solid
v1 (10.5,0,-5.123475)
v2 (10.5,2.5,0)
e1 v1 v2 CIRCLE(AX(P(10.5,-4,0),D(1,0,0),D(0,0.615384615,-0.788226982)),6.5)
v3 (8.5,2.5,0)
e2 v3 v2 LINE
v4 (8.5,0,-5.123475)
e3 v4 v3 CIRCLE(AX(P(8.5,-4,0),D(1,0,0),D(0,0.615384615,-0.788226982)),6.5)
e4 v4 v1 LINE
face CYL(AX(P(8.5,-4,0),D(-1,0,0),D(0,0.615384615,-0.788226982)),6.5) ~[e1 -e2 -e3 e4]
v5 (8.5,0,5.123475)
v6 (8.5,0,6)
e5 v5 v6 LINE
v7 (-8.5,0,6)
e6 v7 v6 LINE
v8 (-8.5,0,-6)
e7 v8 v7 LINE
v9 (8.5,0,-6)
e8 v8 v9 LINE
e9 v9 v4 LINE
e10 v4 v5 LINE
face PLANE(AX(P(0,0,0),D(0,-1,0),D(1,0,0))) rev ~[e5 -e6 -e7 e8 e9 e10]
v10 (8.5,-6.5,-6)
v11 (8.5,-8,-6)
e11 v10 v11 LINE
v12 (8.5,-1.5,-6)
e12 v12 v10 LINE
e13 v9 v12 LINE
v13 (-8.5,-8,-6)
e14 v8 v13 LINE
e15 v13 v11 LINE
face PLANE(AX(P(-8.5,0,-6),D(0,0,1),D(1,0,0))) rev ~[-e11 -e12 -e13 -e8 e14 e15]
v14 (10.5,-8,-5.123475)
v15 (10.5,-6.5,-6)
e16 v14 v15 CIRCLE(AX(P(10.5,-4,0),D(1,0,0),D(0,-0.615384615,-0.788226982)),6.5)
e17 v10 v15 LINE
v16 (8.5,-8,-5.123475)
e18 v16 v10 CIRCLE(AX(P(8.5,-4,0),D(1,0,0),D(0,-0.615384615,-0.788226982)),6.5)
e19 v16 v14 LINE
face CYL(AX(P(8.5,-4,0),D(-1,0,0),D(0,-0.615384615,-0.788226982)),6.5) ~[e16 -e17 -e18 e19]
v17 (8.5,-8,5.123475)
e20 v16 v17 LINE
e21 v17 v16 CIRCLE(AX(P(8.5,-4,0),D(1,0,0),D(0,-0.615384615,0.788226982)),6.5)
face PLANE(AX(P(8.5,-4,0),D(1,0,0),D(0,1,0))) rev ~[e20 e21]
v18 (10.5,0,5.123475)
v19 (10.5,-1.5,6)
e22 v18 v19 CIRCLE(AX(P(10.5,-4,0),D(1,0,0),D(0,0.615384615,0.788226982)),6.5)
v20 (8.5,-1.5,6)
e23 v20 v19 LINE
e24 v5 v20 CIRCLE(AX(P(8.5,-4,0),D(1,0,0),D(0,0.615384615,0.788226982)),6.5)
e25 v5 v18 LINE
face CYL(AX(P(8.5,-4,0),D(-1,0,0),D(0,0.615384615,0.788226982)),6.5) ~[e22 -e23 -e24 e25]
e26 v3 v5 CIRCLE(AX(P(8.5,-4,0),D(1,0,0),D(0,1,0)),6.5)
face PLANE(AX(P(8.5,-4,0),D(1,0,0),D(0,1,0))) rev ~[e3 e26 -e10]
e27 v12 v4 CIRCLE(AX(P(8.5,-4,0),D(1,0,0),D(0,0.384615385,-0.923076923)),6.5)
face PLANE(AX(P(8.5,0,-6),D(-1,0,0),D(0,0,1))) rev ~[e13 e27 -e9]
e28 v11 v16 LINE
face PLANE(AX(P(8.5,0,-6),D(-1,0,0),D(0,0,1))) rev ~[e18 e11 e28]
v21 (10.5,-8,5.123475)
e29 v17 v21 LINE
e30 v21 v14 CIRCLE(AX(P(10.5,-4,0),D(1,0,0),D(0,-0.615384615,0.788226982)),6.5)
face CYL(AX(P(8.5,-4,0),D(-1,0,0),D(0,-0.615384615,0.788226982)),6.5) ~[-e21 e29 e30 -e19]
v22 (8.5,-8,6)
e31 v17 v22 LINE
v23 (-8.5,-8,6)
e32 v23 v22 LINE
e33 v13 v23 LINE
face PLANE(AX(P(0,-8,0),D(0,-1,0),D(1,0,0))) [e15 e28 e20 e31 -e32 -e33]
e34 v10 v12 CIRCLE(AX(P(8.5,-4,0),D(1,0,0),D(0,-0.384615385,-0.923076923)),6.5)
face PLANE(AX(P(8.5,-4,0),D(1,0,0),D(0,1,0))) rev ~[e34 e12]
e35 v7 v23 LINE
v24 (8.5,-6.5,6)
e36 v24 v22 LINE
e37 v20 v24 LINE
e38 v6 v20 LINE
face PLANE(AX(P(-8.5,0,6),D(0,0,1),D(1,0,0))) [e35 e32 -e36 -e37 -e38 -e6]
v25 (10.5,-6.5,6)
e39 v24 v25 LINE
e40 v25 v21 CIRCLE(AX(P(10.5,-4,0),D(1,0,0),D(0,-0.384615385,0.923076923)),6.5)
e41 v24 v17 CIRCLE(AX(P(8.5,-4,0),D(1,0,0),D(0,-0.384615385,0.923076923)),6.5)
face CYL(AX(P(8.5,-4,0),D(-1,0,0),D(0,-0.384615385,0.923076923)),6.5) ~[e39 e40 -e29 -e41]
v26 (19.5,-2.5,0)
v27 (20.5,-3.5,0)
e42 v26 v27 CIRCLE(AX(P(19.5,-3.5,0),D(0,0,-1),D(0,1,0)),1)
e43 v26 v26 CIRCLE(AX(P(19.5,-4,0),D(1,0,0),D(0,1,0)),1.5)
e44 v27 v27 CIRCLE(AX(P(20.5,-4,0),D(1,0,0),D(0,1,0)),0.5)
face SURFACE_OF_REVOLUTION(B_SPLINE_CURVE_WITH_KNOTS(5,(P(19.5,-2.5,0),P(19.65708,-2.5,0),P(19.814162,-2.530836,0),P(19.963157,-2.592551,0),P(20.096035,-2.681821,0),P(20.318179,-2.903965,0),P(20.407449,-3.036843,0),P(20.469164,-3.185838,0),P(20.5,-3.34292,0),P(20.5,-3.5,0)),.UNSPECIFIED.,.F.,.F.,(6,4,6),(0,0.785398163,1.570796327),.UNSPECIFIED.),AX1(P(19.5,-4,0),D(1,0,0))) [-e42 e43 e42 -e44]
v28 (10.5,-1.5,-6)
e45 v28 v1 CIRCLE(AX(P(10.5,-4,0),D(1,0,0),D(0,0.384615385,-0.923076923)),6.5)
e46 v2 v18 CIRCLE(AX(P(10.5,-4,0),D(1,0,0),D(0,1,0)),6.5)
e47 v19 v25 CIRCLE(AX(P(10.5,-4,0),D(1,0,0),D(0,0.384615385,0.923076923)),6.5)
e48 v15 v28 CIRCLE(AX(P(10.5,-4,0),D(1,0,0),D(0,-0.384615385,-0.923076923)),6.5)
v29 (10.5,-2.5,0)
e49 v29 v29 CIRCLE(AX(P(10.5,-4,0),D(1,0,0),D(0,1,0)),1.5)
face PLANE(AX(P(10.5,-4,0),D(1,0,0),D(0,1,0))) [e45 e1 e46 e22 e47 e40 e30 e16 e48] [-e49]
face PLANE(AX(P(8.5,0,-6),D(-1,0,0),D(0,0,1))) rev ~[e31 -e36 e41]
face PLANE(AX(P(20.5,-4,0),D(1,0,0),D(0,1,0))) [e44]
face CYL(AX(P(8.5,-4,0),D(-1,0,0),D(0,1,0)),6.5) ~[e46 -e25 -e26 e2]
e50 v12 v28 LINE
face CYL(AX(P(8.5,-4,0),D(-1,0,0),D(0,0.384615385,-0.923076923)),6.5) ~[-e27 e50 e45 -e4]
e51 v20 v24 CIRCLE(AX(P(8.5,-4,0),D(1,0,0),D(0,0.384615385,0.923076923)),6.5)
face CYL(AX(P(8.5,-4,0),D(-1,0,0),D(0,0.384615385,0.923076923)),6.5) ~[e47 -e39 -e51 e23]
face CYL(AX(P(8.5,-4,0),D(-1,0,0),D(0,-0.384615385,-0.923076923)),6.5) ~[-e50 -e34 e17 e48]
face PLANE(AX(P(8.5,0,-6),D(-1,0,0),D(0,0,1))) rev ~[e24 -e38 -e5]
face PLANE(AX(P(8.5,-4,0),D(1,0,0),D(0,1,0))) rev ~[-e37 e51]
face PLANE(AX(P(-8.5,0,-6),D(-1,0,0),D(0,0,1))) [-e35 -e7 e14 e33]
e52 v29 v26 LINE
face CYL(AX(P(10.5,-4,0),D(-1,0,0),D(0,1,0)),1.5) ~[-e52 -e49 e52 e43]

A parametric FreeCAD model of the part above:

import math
import FreeCAD as App
import Part
import Sketcher
Q = App.Units.Quantity


def edges_at(feature, points):
    """Names of the edges that pass closest to the given points."""
    edges = feature.Shape.Edges
    near = lambda p: min(range(len(edges)), key=lambda i: edges[i].distToShape(Part.Vertex(*p))[0])
    return sorted({f"Edge{near(p) + 1}" for p in points})


def add_polygon(sketch, points):
    """Adds a closed chain of lines whose ends are joined by coincident constraints."""
    first, n = sketch.GeometryCount, len(points)
    for a, b in zip(points, points[1:] + points[:1]):
        sketch.addGeometry(Part.LineSegment(App.Vector(*a, 0), App.Vector(*b, 0)), False)
    for i in range(n):
        sketch.addConstraint(Sketcher.Constraint("Coincident", first + i, 2, first + (i + 1) % n, 1))

doc = App.newDocument("Part")
body = doc.addObject("PartDesign::Body", "Body")

# Sketch on XZ plane
sketch1 = doc.addObject("Sketcher::SketchObject", "Sketch")
body.addObject(sketch1)
sketch1.AttachmentSupport = (doc.XZ_Plane, [""])
sketch1.MapMode = "FlatFace"
add_polygon(sketch1, [(-8, 6), (-8, -6), (8, -6), (8, 6)])  # lines 0-3
sketch1.addConstraint([
    Sketcher.Constraint("Vertical", 0),
    Sketcher.Constraint("Horizontal", 1),
    Sketcher.Constraint("Vertical", 2),
    Sketcher.Constraint("Horizontal", 3),
    Sketcher.Constraint("Symmetric", 0, 2, 2, 2, -1, 1),
    Sketcher.Constraint("DistanceX", 1, 1, 1, 2, Q("17 mm")),
    Sketcher.Constraint("DistanceY", 0, 2, 0, 1, Q("12 mm")),
])
pad1 = doc.addObject("PartDesign::Pad", "Pad")
body.addObject(pad1)
pad1.Profile = sketch1
pad1.Length = 8

# Sketch on YZ plane
sketch2 = doc.addObject("Sketcher::SketchObject", "Sketch001")
body.addObject(sketch2)
sketch2.AttachmentSupport = (doc.YZ_Plane, [""])
sketch2.MapMode = "FlatFace"
sketch2.AttachmentOffset = App.Placement(App.Vector(0, 0, 8.5), App.Rotation())
sketch2.addGeometry([
    Part.ArcOfCircle(Part.Circle(App.Vector(-4, 0, 0), App.Vector(0, 0, 1), 6.5), math.radians(52.02), math.radians(67.38)),  # 0
    Part.ArcOfCircle(Part.Circle(App.Vector(-4, 0, 0), App.Vector(0, 0, 1), 6.5), math.radians(67), math.radians(113)),  # 1
    Part.ArcOfCircle(Part.Circle(App.Vector(-4, 0, 0), App.Vector(0, 0, 1), 6.5), math.radians(112.62), math.radians(127.98)),  # 2
    Part.ArcOfCircle(Part.Circle(App.Vector(-4, 0, 0), App.Vector(0, 0, 1), 6.5), math.radians(128), math.radians(232)),  # 3
    Part.ArcOfCircle(Part.Circle(App.Vector(-4, 0, 0), App.Vector(0, 0, 1), 6.5), math.radians(-127.98), math.radians(-112.62)),  # 4
    Part.ArcOfCircle(Part.Circle(App.Vector(-4, 0, 0), App.Vector(0, 0, 1), 6.5), math.radians(-113), math.radians(-67)),  # 5
    Part.ArcOfCircle(Part.Circle(App.Vector(-4, 0, 0), App.Vector(0, 0, 1), 6.5), math.radians(-67.38), math.radians(-52.02)),  # 6
    Part.ArcOfCircle(Part.Circle(App.Vector(-4, 0, 0), App.Vector(0, 0, 1), 6.5), math.radians(-52), math.radians(0)),  # 7
    Part.ArcOfCircle(Part.Circle(App.Vector(-4, 0, 0), App.Vector(0, 0, 1), 6.5), math.radians(0), math.radians(52)),  # 8
], False)
sketch2.addConstraint([
    Sketcher.Constraint("Tangent", 0, 2, 1, 1),
    Sketcher.Constraint("Tangent", 1, 2, 2, 1),
    Sketcher.Constraint("Tangent", 2, 2, 3, 1),
    Sketcher.Constraint("Tangent", 3, 2, 4, 1),
    Sketcher.Constraint("Tangent", 4, 2, 5, 1),
    Sketcher.Constraint("Tangent", 5, 2, 6, 1),
    Sketcher.Constraint("Tangent", 6, 2, 7, 1),
    Sketcher.Constraint("Tangent", 7, 2, 8, 1),
    Sketcher.Constraint("Tangent", 8, 2, 0, 1),
    Sketcher.Constraint("Coincident", 2, 3, 0, 3),
    Sketcher.Constraint("Coincident", 4, 3, 0, 3),
    Sketcher.Constraint("Coincident", 6, 3, 0, 3),
    Sketcher.Constraint("Symmetric", 6, 2, 8, 2, -1, 1),
    Sketcher.Constraint("Symmetric", 2, 2, 3, 2, -1),
    Sketcher.Constraint("PointOnObject", 7, 2, -1),
    Sketcher.Constraint("Horizontal", 0, 2, 1, 2),
    Sketcher.Constraint("Horizontal", 4, 2, 5, 2),
    Sketcher.Constraint("Horizontal", 3, 2, 6, 2),
    Sketcher.Constraint("Vertical", 1, 2, 4, 2),
    Sketcher.Constraint("Radius", 0, Q("6.5 mm")),
    Sketcher.Constraint("DistanceX", 0, 3, -1, 1, Q("4 mm")),
    Sketcher.Constraint("DistanceY", -1, 1, 0, 2, Q("6 mm")),
])
pad2 = doc.addObject("PartDesign::Pad", "Pad001")
body.addObject(pad2)
pad2.Profile = sketch2
pad2.Length = 2

# Sketch on YZ plane
sketch3 = doc.addObject("Sketcher::SketchObject", "Sketch002")
body.addObject(sketch3)
sketch3.AttachmentSupport = (doc.YZ_Plane, [""])
sketch3.MapMode = "FlatFace"
sketch3.AttachmentOffset = App.Placement(App.Vector(0, 0, 10.5), App.Rotation())
sketch3.addGeometry(Part.Circle(App.Vector(-4, 0, 0), App.Vector(0, 0, 1), 1.5), False)
sketch3.addConstraint([
    Sketcher.Constraint("PointOnObject", 0, 3, -1),
    Sketcher.Constraint("Diameter", 0, Q("3 mm")),
    Sketcher.Constraint("DistanceX", 0, 3, -1, 1, Q("4 mm")),
])
pad3 = doc.addObject("PartDesign::Pad", "Pad002")
body.addObject(pad3)
pad3.Profile = sketch3
pad3.Length = 10
doc.recompute()

fillet = doc.addObject("PartDesign::Fillet", "Fillet")
body.addObject(fillet)
fillet.Base = (pad3, edges_at(pad3, [(20.5, -5.5, 0)]))
fillet.Radius = 1

doc.recompute()
